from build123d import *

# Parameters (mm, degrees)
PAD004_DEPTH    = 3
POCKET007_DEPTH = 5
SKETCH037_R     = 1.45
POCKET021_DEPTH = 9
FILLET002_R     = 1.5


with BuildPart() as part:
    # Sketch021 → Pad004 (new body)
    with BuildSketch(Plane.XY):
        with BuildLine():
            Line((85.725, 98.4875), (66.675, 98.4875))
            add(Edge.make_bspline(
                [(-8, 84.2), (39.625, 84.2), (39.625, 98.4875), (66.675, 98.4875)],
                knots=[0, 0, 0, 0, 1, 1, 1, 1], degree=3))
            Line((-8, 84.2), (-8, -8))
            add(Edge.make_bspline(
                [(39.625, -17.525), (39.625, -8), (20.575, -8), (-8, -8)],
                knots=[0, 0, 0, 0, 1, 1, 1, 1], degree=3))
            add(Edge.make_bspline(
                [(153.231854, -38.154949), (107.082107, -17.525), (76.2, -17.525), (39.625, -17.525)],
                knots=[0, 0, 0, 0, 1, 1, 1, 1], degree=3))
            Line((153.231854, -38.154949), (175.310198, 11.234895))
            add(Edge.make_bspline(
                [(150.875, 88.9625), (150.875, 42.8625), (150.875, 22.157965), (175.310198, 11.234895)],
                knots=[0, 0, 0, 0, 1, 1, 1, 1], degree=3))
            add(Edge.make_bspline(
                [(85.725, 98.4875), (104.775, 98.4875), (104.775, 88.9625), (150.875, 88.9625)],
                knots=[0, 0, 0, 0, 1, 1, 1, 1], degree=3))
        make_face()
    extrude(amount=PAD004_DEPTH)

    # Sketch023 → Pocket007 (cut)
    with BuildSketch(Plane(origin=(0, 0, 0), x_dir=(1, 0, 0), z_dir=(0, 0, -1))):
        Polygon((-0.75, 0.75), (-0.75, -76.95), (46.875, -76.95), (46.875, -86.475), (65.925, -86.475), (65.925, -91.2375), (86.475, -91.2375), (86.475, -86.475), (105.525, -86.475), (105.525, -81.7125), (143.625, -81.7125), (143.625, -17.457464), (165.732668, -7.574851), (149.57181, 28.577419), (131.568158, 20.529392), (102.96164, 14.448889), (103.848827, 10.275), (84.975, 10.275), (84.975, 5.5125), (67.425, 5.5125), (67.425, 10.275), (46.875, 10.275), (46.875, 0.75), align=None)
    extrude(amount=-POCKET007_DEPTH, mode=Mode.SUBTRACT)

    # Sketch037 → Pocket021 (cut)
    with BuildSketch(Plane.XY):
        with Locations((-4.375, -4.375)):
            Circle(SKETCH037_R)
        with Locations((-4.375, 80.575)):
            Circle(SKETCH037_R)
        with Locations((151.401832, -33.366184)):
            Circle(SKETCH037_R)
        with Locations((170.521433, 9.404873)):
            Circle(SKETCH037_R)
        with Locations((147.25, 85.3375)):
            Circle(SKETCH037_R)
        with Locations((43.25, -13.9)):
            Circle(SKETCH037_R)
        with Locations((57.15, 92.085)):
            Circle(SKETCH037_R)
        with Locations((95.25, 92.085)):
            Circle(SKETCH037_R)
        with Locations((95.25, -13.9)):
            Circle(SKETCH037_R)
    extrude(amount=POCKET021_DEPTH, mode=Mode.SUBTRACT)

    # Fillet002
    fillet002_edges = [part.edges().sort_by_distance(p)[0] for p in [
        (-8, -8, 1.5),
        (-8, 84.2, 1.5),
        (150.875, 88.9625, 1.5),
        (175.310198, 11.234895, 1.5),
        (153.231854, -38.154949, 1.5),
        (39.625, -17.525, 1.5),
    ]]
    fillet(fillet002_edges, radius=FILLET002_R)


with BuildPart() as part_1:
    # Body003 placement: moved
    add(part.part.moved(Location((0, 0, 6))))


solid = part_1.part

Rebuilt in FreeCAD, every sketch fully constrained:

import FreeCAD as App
import Part
import Sketcher
Q = App.Units.Quantity


def edges_at(feature, points):
    """Names of the edges that pass closest to the given points."""
    edges = feature.Shape.Edges
    near = lambda p: min(range(len(edges)), key=lambda i: edges[i].distToShape(Part.Vertex(*p))[0])
    return sorted({f"Edge{near(p) + 1}" for p in points})


def add_polygon(sketch, points):
    """Adds a closed chain of lines whose ends are joined by coincident constraints."""
    first, n = sketch.GeometryCount, len(points)
    for a, b in zip(points, points[1:] + points[:1]):
        sketch.addGeometry(Part.LineSegment(App.Vector(*a, 0), App.Vector(*b, 0)), False)
    for i in range(n):
        sketch.addConstraint(Sketcher.Constraint("Coincident", first + i, 2, first + (i + 1) % n, 1))

doc = App.newDocument("Part")
body = doc.addObject("PartDesign::Body", "Body")

# Sketch on XY plane
sketch1 = body.newObject("Sketcher::SketchObject", "Sketch")
sketch1.AttachmentSupport = (doc.getObject("XY_Plane"), [""])
sketch1.MapMode = "FlatFace"
sketch1.addGeometry(Part.LineSegment(App.Vector(85.725, 98.4875, 0), App.Vector(66.675, 98.4875, 0)), False)
sketch1.addGeometry(Part.BSplineCurve([App.Vector(-8, 84.2, 0), App.Vector(39.625, 84.2, 0), App.Vector(39.625, 98.4875, 0), App.Vector(66.675, 98.4875, 0)], [4, 4], [0, 1], False, 3, [1, 1, 1, 1], False), False)
sketch1.addGeometry(Part.LineSegment(App.Vector(-8, 84.2, 0), App.Vector(-8, -8, 0)), False)
sketch1.addGeometry(Part.BSplineCurve([App.Vector(39.625, -17.525, 0), App.Vector(39.625, -8, 0), App.Vector(20.575, -8, 0), App.Vector(-8, -8, 0)], [4, 4], [0, 1], False, 3, [1, 1, 1, 1], False), False)
sketch1.addGeometry(Part.BSplineCurve([App.Vector(153.231854, -38.154949, 0), App.Vector(107.082107, -17.525, 0), App.Vector(76.2, -17.525, 0), App.Vector(39.625, -17.525, 0)], [4, 4], [0, 1], False, 3, [1, 1, 1, 1], False), False)
sketch1.addGeometry(Part.LineSegment(App.Vector(153.231854, -38.154949, 0), App.Vector(175.310198, 11.234895, 0)), False)
sketch1.addGeometry(Part.BSplineCurve([App.Vector(150.875, 88.9625, 0), App.Vector(150.875, 42.8625, 0), App.Vector(150.875, 22.157965, 0), App.Vector(175.310198, 11.234895, 0)], [4, 4], [0, 1], False, 3, [1, 1, 1, 1], False), False)
sketch1.addGeometry(Part.BSplineCurve([App.Vector(85.725, 98.4875, 0), App.Vector(104.775, 98.4875, 0), App.Vector(104.775, 88.9625, 0), App.Vector(150.875, 88.9625, 0)], [4, 4], [0, 1], False, 3, [1, 1, 1, 1], False), False)
sketch1.addConstraint(Sketcher.Constraint("Block", 1))
sketch1.addConstraint(Sketcher.Constraint("Block", 3))
sketch1.addConstraint(Sketcher.Constraint("Block", 4))
sketch1.addConstraint(Sketcher.Constraint("Block", 6))
sketch1.addConstraint(Sketcher.Constraint("Block", 7))
sketch1.addConstraint(Sketcher.Constraint("Coincident", 0, 2, 1, 2))
sketch1.addConstraint(Sketcher.Constraint("Coincident", 1, 1, 2, 1))
sketch1.addConstraint(Sketcher.Constraint("Coincident", 2, 2, 3, 2))
sketch1.addConstraint(Sketcher.Constraint("Coincident", 4, 1, 5, 1))
sketch1.addConstraint(Sketcher.Constraint("Coincident", 5, 2, 6, 2))
sketch1.addConstraint(Sketcher.Constraint("Coincident", 7, 1, 0, 1))
pad1 = body.newObject("PartDesign::Pad", "Pad")
pad1.Profile = sketch1
pad1.Length = 3

# Sketch on XY plane
sketch2 = body.newObject("Sketcher::SketchObject", "Sketch001")
sketch2.AttachmentSupport = (doc.getObject("XY_Plane"), [""])
sketch2.MapMode = "FlatFace"
add_polygon(sketch2, [(-0.75, -0.75), (-0.75, 76.95), (46.875, 76.95), (46.875, 86.475), (65.925, 86.475), (65.925, 91.2375), (86.475, 91.2375), (86.475, 86.475), (105.525, 86.475), (105.525, 81.7125), (143.625, 81.7125), (143.625, 17.457464), (165.732668, 7.574851), (149.57181, -28.577419), (131.568158, -20.529392), (102.96164, -14.448889), (103.848827, -10.275), (84.975, -10.275), (84.975, -5.5125), (67.425, -5.5125), (67.425, -10.275), (46.875, -10.275), (46.875, -0.75)])  # lines 0-22
sketch2.addConstraint(Sketcher.Constraint("Vertical", 0))
sketch2.addConstraint(Sketcher.Constraint("Horizontal", 1))
sketch2.addConstraint(Sketcher.Constraint("Vertical", 2))
sketch2.addConstraint(Sketcher.Constraint("Horizontal", 3))
sketch2.addConstraint(Sketcher.Constraint("Vertical", 4))
sketch2.addConstraint(Sketcher.Constraint("Horizontal", 5))
sketch2.addConstraint(Sketcher.Constraint("Vertical", 6))
sketch2.addConstraint(Sketcher.Constraint("Horizontal", 7))
sketch2.addConstraint(Sketcher.Constraint("Vertical", 8))
sketch2.addConstraint(Sketcher.Constraint("Horizontal", 9))
sketch2.addConstraint(Sketcher.Constraint("Vertical", 10))
sketch2.addConstraint(Sketcher.Constraint("Horizontal", 16))
sketch2.addConstraint(Sketcher.Constraint("Vertical", 17))
sketch2.addConstraint(Sketcher.Constraint("Horizontal", 18))
sketch2.addConstraint(Sketcher.Constraint("Vertical", 19))
sketch2.addConstraint(Sketcher.Constraint("Horizontal", 20))
sketch2.addConstraint(Sketcher.Constraint("Vertical", 21))
sketch2.addConstraint(Sketcher.Constraint("Horizontal", 22))
sketch2.addConstraint(Sketcher.Constraint("Perpendicular", 11, 12))
sketch2.addConstraint(Sketcher.Constraint("Perpendicular", 12, 13))
sketch2.addConstraint(Sketcher.Constraint("Perpendicular", 14, 15))
sketch2.addConstraint(Sketcher.Constraint("Horizontal", 3, 2, 6, 2))
sketch2.addConstraint(Sketcher.Constraint("Horizontal", 16, 2, 19, 2))
sketch2.addConstraint(Sketcher.Constraint("Vertical", 2, 2, 20, 2))
sketch2.addConstraint(Sketcher.Constraint("Equal", 3, 7))
sketch2.addConstraint(Sketcher.Constraint("Equal", 5, 20))
sketch2.addConstraint(Sketcher.Constraint("Equal", 6, 8))
sketch2.addConstraint(Sketcher.Constraint("Equal", 8, 17))
sketch2.addConstraint(Sketcher.Constraint("Equal", 2, 21))
sketch2.addConstraint(Sketcher.Constraint("Angle", 14, Q("168 deg")))
sketch2.addConstraint(Sketcher.Constraint("DistanceX", 9, 1, 9, 2, Q("38.1 mm")))
sketch2.addConstraint(Sketcher.Constraint("DistanceY", 0, 1, 0, 2, Q("77.7 mm")))
sketch2.addConstraint(Sketcher.Constraint("Distance", 12, Q("39.599999 mm")))
sketch2.addConstraint(Sketcher.Constraint("DistanceX", 3, 1, 3, 2, Q("19.05 mm")))
sketch2.addConstraint(Sketcher.Constraint("DistanceX", 5, 1, 5, 2, Q("20.55 mm")))
sketch2.addConstraint(Sketcher.Constraint("DistanceX", 18, 2, 18, 1, Q("17.55 mm")))
sketch2.addConstraint(Sketcher.Constraint("DistanceX", 1, 1, 1, 2, Q("47.625 mm")))
sketch2.addConstraint(Sketcher.Constraint("DistanceY", 2, 1, 2, 2, Q("9.525 mm")))
sketch2.addConstraint(Sketcher.Constraint("DistanceX", 0, 2, -1, 1, Q("0.75 mm")))
sketch2.addConstraint(Sketcher.Constraint("DistanceY", -1, 1, 0, 2, Q("76.95 mm")))
sketch2.addConstraint(Sketcher.Constraint("DistanceY", 4, 1, 4, 2, Q("4.7625 mm")))
sketch2.addConstraint(Sketcher.Constraint("DistanceX", 16, 2, 16, 1, Q("18.873827 mm")))
sketch2.addConstraint(Sketcher.Constraint("DistanceY", 10, 2, 10, 1, Q("64.255036 mm")))
sketch2.addConstraint(Sketcher.Constraint("DistanceY", -1, 1, 11, 2, Q("7.574851 mm")))
sketch2.addConstraint(Sketcher.Constraint("DistanceX", -1, 1, 12, 2, Q("149.57181 mm")))
sketch2.addConstraint(Sketcher.Constraint("DistanceX", -1, 1, 13, 2, Q("131.568158 mm")))
pocket1 = body.newObject("PartDesign::Pocket", "Pocket")
pocket1.Profile = sketch2
pocket1.Length = 5
pocket1.Reversed = True

# Sketch on XY plane
sketch3 = body.newObject("Sketcher::SketchObject", "Sketch002")
sketch3.AttachmentSupport = (doc.getObject("XY_Plane"), [""])
sketch3.MapMode = "FlatFace"
sketch3.addGeometry(Part.Circle(App.Vector(-4.375, -4.375, 0), App.Vector(0, 0, 1), 1.45), False)
sketch3.addGeometry(Part.Circle(App.Vector(-4.375, 80.575, 0), App.Vector(0, 0, 1), 1.45), False)
sketch3.addGeometry(Part.Circle(App.Vector(151.401832, -33.366184, 0), App.Vector(0, 0, 1), 1.45), False)
sketch3.addGeometry(Part.Circle(App.Vector(170.521433, 9.404873, 0), App.Vector(0, 0, 1), 1.45), False)
sketch3.addGeometry(Part.Circle(App.Vector(147.25, 85.3375, 0), App.Vector(0, 0, 1), 1.45), False)
sketch3.addGeometry(Part.Circle(App.Vector(43.25, -13.9, 0), App.Vector(0, 0, 1), 1.45), False)
sketch3.addGeometry(Part.Circle(App.Vector(57.15, 92.085, 0), App.Vector(0, 0, 1), 1.45), False)
sketch3.addGeometry(Part.Circle(App.Vector(95.25, 92.085, 0), App.Vector(0, 0, 1), 1.45), False)
sketch3.addGeometry(Part.Circle(App.Vector(95.25, -13.9, 0), App.Vector(0, 0, 1), 1.45), False)
sketch3.addConstraint(Sketcher.Constraint("Equal", 0, 1))
sketch3.addConstraint(Sketcher.Constraint("Equal", 1, 2))
sketch3.addConstraint(Sketcher.Constraint("Equal", 2, 3))
sketch3.addConstraint(Sketcher.Constraint("Equal", 3, 4))
sketch3.addConstraint(Sketcher.Constraint("Equal", 4, 5))
sketch3.addConstraint(Sketcher.Constraint("Equal", 5, 6))
sketch3.addConstraint(Sketcher.Constraint("Equal", 6, 7))
sketch3.addConstraint(Sketcher.Constraint("Equal", 7, 8))
sketch3.addConstraint(Sketcher.Constraint("Horizontal", 6, 3, 7, 3))
sketch3.addConstraint(Sketcher.Constraint("Horizontal", 5, 3, 8, 3))
sketch3.addConstraint(Sketcher.Constraint("Vertical", 0, 3, 1, 3))
sketch3.addConstraint(Sketcher.Constraint("Vertical", 7, 3, 8, 3))
sketch3.addConstraint(Sketcher.Constraint("Diameter", 0, Q("2.9 mm")))
sketch3.addConstraint(Sketcher.Constraint("DistanceX", 5, 3, 4, 3, Q("104 mm")))
sketch3.addConstraint(Sketcher.Constraint("DistanceX", 7, 3, 4, 3, Q("52 mm")))
sketch3.addConstraint(Sketcher.Constraint("DistanceY", 5, 3, -1, 1, Q("13.9 mm")))
sketch3.addConstraint(Sketcher.Constraint("DistanceX", 6, 3, 4, 3, Q("90.1 mm")))
sketch3.addConstraint(Sketcher.Constraint("DistanceX", -1, 1, 4, 3, Q("147.25 mm")))
sketch3.addConstraint(Sketcher.Constraint("DistanceY", 0, 3, 1, 3, Q("84.95 mm")))
sketch3.addConstraint(Sketcher.Constraint("DistanceY", 1, 3, 6, 3, Q("11.51 mm")))
sketch3.addConstraint(Sketcher.Constraint("DistanceX", 0, 3, -1, 1, Q("4.375 mm")))
sketch3.addConstraint(Sketcher.Constraint("DistanceY", 0, 3, -1, 1, Q("4.375 mm")))
sketch3.addConstraint(Sketcher.Constraint("DistanceY", -1, 1, 4, 3, Q("85.3375 mm")))
sketch3.addConstraint(Sketcher.Constraint("DistanceX", 2, 3, 3, 3, Q("19.119601 mm")))
sketch3.addConstraint(Sketcher.Constraint("DistanceX", -1, 1, 2, 3, Q("151.401832 mm")))
sketch3.addConstraint(Sketcher.Constraint("DistanceY", 2, 3, -1, 1, Q("33.366184 mm")))
sketch3.addConstraint(Sketcher.Constraint("DistanceY", -1, 1, 3, 3, Q("9.404873 mm")))
pocket2 = body.newObject("PartDesign::Pocket", "Pocket001")
pocket2.Profile = sketch3
pocket2.Length = 9
pocket2.Reversed = True
doc.recompute()

fillet = body.newObject("PartDesign::Fillet", "Fillet")
fillet.Base = (pocket2, edges_at(pocket2, [
    (-8, -8, 1.5),
    (-8, 84.2, 1.5),
    (150.875, 88.963, 1.5),
    (175.31, 11.235, 1.5),
    (153.232, -38.155, 1.5),
    (39.625, -17.525, 1.5),
]))
fillet.Radius = 1.5
body2 = doc.addObject("PartDesign::Body", "Body001")
doc.recompute()

body.Placement = App.Placement(App.Vector(0, 0, 6), App.Rotation(App.Vector(0, 0, 1), 0))
boolean = body2.newObject("PartDesign::Boolean", "Boolean")
boolean.Type = "Fuse"
boolean.addObjects([body])

doc.recompute()
